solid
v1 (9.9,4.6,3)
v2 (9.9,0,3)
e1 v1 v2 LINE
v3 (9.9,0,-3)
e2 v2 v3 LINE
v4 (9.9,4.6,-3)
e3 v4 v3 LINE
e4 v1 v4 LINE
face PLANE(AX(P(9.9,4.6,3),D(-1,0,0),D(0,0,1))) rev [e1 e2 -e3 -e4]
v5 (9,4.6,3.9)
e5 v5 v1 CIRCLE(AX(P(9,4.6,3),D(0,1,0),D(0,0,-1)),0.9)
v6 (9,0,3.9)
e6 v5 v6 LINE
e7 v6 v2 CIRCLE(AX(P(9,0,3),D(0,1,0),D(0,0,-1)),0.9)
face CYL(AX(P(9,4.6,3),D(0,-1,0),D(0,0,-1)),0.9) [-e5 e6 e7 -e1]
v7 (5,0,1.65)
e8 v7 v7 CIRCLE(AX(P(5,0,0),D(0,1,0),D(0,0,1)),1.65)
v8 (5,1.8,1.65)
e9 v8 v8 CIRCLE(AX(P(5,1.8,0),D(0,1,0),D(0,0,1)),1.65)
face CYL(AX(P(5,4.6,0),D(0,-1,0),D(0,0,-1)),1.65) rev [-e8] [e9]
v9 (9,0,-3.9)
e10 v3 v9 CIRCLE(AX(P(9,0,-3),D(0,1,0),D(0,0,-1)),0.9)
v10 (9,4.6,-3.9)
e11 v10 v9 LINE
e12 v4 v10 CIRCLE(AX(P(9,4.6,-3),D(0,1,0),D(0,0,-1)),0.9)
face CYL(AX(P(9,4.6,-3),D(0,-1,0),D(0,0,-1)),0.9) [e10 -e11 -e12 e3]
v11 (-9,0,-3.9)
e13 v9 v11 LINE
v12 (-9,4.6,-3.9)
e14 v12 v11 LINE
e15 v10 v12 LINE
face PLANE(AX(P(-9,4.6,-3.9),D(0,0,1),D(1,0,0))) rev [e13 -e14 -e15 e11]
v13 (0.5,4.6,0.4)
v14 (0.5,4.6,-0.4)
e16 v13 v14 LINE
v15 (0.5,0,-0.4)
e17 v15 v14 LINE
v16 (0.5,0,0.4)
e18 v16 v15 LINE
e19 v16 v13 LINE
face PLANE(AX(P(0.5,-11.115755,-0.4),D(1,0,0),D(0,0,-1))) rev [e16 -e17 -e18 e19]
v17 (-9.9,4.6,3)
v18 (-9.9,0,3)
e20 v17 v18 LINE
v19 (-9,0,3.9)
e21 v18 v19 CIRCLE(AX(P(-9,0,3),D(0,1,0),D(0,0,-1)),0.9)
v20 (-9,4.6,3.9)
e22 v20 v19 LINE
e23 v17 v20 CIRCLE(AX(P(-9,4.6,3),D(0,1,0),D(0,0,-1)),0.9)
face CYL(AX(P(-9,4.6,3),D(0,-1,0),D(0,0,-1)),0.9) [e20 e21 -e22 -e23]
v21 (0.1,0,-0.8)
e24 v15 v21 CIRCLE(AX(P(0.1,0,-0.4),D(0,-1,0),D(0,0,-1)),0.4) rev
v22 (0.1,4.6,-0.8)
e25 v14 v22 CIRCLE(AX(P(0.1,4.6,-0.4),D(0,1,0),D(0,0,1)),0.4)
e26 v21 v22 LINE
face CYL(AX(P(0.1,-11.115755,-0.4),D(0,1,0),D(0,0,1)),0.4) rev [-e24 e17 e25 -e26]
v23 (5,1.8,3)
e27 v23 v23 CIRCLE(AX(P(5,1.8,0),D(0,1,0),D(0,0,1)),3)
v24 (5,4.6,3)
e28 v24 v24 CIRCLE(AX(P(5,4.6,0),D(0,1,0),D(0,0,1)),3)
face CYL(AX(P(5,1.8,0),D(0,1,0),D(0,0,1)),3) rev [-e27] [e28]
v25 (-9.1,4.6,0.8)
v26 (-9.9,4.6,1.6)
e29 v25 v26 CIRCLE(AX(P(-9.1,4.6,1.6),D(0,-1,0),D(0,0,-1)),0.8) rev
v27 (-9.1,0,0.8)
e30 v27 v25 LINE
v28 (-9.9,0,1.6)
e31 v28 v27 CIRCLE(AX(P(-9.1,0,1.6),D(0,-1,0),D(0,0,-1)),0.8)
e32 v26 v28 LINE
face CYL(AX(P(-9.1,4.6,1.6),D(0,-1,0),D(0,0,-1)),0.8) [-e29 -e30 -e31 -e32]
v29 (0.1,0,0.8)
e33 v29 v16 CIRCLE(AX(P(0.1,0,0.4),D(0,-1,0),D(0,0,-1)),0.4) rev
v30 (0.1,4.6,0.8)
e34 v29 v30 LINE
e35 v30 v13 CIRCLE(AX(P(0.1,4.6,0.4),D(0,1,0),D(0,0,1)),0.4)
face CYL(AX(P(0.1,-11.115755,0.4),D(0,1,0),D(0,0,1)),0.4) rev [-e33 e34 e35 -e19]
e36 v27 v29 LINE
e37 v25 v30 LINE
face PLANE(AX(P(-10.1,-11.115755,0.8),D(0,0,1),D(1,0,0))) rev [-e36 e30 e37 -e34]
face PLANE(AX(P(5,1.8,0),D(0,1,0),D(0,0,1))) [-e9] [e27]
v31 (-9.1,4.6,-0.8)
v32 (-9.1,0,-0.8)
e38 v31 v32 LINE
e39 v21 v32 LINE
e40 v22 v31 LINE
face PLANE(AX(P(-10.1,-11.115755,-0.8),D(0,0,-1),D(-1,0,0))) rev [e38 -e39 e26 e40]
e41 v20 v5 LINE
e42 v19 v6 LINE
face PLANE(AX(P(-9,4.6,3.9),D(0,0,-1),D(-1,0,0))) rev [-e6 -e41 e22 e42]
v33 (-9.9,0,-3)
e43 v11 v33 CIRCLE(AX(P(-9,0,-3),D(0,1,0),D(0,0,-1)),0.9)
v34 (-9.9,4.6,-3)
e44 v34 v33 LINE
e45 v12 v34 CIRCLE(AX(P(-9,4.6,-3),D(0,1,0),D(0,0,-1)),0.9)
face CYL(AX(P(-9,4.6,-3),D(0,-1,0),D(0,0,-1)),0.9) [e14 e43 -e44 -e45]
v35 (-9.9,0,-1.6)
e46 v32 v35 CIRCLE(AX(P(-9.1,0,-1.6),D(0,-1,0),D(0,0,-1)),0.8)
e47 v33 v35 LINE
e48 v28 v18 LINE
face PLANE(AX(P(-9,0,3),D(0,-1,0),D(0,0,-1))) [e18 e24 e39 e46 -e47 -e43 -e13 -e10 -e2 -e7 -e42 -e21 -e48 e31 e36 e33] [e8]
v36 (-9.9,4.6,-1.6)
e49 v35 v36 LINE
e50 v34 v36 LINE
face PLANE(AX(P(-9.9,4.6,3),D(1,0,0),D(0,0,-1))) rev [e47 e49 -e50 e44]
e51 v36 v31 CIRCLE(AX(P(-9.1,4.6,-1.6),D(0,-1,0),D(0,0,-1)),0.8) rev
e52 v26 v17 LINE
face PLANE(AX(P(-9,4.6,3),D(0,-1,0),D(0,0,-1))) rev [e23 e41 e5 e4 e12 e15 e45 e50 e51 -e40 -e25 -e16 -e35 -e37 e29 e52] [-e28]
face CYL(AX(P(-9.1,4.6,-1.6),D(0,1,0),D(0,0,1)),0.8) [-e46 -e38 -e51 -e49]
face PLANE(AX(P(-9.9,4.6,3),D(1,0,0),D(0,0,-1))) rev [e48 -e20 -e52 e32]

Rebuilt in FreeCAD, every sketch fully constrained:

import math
import FreeCAD as App
import Part
import Sketcher


def edges_at(feature, points):
    """Names of the edges that pass closest to the given points."""
    edges = feature.Shape.Edges
    near = lambda p: min(range(len(edges)), key=lambda i: edges[i].distToShape(Part.Vertex(*p))[0])
    return sorted({f"Edge{near(p) + 1}" for p in points})

doc = App.newDocument("Part")
body = doc.addObject("PartDesign::Body", "Body")

# Sketch on XZ plane
sketch1 = body.newObject("Sketcher::SketchObject", "Sketch")
sketch1.AttachmentSupport = (doc.getObject("XZ_Plane"), [""])
sketch1.MapMode = "FlatFace"
sketch1.addGeometry([
    Part.LineSegment(App.Vector(-9.9, -3, 0), App.Vector(-9.9, 3, 0)),  # 0
    Part.ArcOfCircle(Part.Circle(App.Vector(-9, 3, 0), App.Vector(0, 0, 1), 0.9), math.radians(90), math.radians(180)),  # 1
    Part.LineSegment(App.Vector(-9, 3.9, 0), App.Vector(9, 3.9, 0)),  # 2
    Part.ArcOfCircle(Part.Circle(App.Vector(9, 3, 0), App.Vector(0, 0, 1), 0.9), math.radians(0), math.radians(90)),  # 3
    Part.LineSegment(App.Vector(9.9, 3, 0), App.Vector(9.9, -3, 0)),  # 4
    Part.ArcOfCircle(Part.Circle(App.Vector(9, -3, 0), App.Vector(0, 0, 1), 0.9), math.radians(-90), math.radians(0)),  # 5
    Part.LineSegment(App.Vector(9, -3.9, 0), App.Vector(-9, -3.9, 0)),  # 6
    Part.ArcOfCircle(Part.Circle(App.Vector(-9, -3, 0), App.Vector(0, 0, 1), 0.9), math.radians(180), math.radians(270)),  # 7
    Part.Circle(App.Vector(5, 0, 0), App.Vector(0, 0, 1), 1.6),  # 8
], False)
sketch1.addConstraint([
    Sketcher.Constraint("Tangent", 0, 2, 1, 2),
    Sketcher.Constraint("Tangent", 1, 1, 2, 1),
    Sketcher.Constraint("Tangent", 2, 2, 3, 2),
    Sketcher.Constraint("Tangent", 3, 1, 4, 1),
    Sketcher.Constraint("Tangent", 4, 2, 5, 2),
    Sketcher.Constraint("Tangent", 5, 1, 6, 1),
    Sketcher.Constraint("Tangent", 6, 2, 7, 2),
    Sketcher.Constraint("Tangent", 7, 1, 0, 1),
    Sketcher.Constraint("Vertical", 0),
    Sketcher.Constraint("Horizontal", 2),
    Sketcher.Constraint("Vertical", 4),
    Sketcher.Constraint("Horizontal", 6),
    Sketcher.Constraint("Equal", 1, 3),
    Sketcher.Constraint("Equal", 3, 5),
    Sketcher.Constraint("Equal", 5, 7),
    Sketcher.Constraint("Symmetric", 1, 3, 5, 3, -1, 1),
    Sketcher.Constraint("PointOnObject", 8, 3, -1),
    Sketcher.Constraint("Diameter", 8, 3.3),
    Sketcher.Constraint("Radius", 1, 0.9),
    Sketcher.Constraint("DistanceX", 2, 1, 2, 2, 18.0),
    Sketcher.Constraint("DistanceY", 0, 1, 0, 2, 6.0),
    Sketcher.Constraint("DistanceX", -1, 1, 8, 3, 5.0),
])
pad1 = body.newObject("PartDesign::Pad", "Pad")
pad1.Profile = sketch1
pad1.Length = 4.6
pad1.Reversed = True

# Sketch on XZ plane
sketch2 = body.newObject("Sketcher::SketchObject", "Sketch001")
sketch2.AttachmentSupport = (doc.getObject("XZ_Plane"), [""])
sketch2.MapMode = "FlatFace"
sketch2.AttachmentOffset = App.Placement(App.Vector(0, 0, -4.6), App.Rotation())
sketch2.addGeometry([
    Part.LineSegment(App.Vector(0.1, -0.8, 0), App.Vector(-10.1, -0.8, 0)),  # 0
    Part.ArcOfCircle(Part.Circle(App.Vector(-10.1, -0.4, 0), App.Vector(0, 0, 1), 0.4), math.radians(-180), math.radians(-90)),  # 1
    Part.LineSegment(App.Vector(-10.5, -0.4, 0), App.Vector(-10.5, 0.4, 0)),  # 2
    Part.ArcOfCircle(Part.Circle(App.Vector(-10.1, 0.4, 0), App.Vector(0, 0, 1), 0.4), math.radians(90), math.radians(180)),  # 3
    Part.LineSegment(App.Vector(-10.1, 0.8, 0), App.Vector(0.1, 0.8, 0)),  # 4
    Part.ArcOfCircle(Part.Circle(App.Vector(0.1, 0.4, 0), App.Vector(0, 0, 1), 0.4), math.radians(0), math.radians(90)),  # 5
    Part.LineSegment(App.Vector(0.5, 0.4, 0), App.Vector(0.5, -0.4, 0)),  # 6
    Part.ArcOfCircle(Part.Circle(App.Vector(0.1, -0.4, 0), App.Vector(0, 0, 1), 0.4), math.radians(-90), math.radians(0)),  # 7
], False)
sketch2.addConstraint([
    Sketcher.Constraint("Tangent", 0, 2, 1, 2),
    Sketcher.Constraint("Tangent", 1, 1, 2, 1),
    Sketcher.Constraint("Tangent", 2, 2, 3, 2),
    Sketcher.Constraint("Tangent", 3, 1, 4, 1),
    Sketcher.Constraint("Tangent", 4, 2, 5, 2),
    Sketcher.Constraint("Tangent", 5, 1, 6, 1),
    Sketcher.Constraint("Tangent", 6, 2, 7, 2),
    Sketcher.Constraint("Tangent", 7, 1, 0, 1),
    Sketcher.Constraint("Horizontal", 0),
    Sketcher.Constraint("Vertical", 2),
    Sketcher.Constraint("Horizontal", 4),
    Sketcher.Constraint("Vertical", 6),
    Sketcher.Constraint("Equal", 1, 3),
    Sketcher.Constraint("Equal", 3, 5),
    Sketcher.Constraint("Equal", 5, 7),
    Sketcher.Constraint("Radius", 1, 0.4),
    Sketcher.Constraint("DistanceX", 0, 2, 0, 1, 10.2),
    Sketcher.Constraint("DistanceY", 2, 1, 2, 2, 0.8),
    Sketcher.Constraint("DistanceX", 1, 3, -1, 1, 10.1),
    Sketcher.Constraint("DistanceY", 1, 3, -1, 1, 0.4),
])
pocket1 = body.newObject("PartDesign::Pocket", "Pocket")
pocket1.Profile = sketch2
pocket1.Length = 4.6
pocket1.Reversed = True
doc.recompute()

fillet = body.newObject("PartDesign::Fillet", "Fillet")
fillet.Base = (pocket1, edges_at(pocket1, [(-9.9, 2.3, 0.8), (-9.9, 2.3, -0.8)]))
fillet.Radius = 0.8

# Sketch on XZ plane
sketch3 = body.newObject("Sketcher::SketchObject", "Sketch002")
sketch3.AttachmentSupport = (doc.getObject("XZ_Plane"), [""])
sketch3.MapMode = "FlatFace"
sketch3.AttachmentOffset = App.Placement(App.Vector(0, 0, -4.6), App.Rotation())
sketch3.addGeometry(Part.Circle(App.Vector(5, 0, 0), App.Vector(0, 0, 1), 3), False)
sketch3.addConstraint([
    Sketcher.Constraint("PointOnObject", 0, 3, -1),
    Sketcher.Constraint("Diameter", 0, 6.0),
    Sketcher.Constraint("DistanceX", -1, 1, 0, 3, 5.0),
])
pocket2 = body.newObject("PartDesign::Pocket", "Pocket001")
pocket2.Profile = sketch3
pocket2.Length = 2.8
pocket2.Reversed = True

doc.recompute()
